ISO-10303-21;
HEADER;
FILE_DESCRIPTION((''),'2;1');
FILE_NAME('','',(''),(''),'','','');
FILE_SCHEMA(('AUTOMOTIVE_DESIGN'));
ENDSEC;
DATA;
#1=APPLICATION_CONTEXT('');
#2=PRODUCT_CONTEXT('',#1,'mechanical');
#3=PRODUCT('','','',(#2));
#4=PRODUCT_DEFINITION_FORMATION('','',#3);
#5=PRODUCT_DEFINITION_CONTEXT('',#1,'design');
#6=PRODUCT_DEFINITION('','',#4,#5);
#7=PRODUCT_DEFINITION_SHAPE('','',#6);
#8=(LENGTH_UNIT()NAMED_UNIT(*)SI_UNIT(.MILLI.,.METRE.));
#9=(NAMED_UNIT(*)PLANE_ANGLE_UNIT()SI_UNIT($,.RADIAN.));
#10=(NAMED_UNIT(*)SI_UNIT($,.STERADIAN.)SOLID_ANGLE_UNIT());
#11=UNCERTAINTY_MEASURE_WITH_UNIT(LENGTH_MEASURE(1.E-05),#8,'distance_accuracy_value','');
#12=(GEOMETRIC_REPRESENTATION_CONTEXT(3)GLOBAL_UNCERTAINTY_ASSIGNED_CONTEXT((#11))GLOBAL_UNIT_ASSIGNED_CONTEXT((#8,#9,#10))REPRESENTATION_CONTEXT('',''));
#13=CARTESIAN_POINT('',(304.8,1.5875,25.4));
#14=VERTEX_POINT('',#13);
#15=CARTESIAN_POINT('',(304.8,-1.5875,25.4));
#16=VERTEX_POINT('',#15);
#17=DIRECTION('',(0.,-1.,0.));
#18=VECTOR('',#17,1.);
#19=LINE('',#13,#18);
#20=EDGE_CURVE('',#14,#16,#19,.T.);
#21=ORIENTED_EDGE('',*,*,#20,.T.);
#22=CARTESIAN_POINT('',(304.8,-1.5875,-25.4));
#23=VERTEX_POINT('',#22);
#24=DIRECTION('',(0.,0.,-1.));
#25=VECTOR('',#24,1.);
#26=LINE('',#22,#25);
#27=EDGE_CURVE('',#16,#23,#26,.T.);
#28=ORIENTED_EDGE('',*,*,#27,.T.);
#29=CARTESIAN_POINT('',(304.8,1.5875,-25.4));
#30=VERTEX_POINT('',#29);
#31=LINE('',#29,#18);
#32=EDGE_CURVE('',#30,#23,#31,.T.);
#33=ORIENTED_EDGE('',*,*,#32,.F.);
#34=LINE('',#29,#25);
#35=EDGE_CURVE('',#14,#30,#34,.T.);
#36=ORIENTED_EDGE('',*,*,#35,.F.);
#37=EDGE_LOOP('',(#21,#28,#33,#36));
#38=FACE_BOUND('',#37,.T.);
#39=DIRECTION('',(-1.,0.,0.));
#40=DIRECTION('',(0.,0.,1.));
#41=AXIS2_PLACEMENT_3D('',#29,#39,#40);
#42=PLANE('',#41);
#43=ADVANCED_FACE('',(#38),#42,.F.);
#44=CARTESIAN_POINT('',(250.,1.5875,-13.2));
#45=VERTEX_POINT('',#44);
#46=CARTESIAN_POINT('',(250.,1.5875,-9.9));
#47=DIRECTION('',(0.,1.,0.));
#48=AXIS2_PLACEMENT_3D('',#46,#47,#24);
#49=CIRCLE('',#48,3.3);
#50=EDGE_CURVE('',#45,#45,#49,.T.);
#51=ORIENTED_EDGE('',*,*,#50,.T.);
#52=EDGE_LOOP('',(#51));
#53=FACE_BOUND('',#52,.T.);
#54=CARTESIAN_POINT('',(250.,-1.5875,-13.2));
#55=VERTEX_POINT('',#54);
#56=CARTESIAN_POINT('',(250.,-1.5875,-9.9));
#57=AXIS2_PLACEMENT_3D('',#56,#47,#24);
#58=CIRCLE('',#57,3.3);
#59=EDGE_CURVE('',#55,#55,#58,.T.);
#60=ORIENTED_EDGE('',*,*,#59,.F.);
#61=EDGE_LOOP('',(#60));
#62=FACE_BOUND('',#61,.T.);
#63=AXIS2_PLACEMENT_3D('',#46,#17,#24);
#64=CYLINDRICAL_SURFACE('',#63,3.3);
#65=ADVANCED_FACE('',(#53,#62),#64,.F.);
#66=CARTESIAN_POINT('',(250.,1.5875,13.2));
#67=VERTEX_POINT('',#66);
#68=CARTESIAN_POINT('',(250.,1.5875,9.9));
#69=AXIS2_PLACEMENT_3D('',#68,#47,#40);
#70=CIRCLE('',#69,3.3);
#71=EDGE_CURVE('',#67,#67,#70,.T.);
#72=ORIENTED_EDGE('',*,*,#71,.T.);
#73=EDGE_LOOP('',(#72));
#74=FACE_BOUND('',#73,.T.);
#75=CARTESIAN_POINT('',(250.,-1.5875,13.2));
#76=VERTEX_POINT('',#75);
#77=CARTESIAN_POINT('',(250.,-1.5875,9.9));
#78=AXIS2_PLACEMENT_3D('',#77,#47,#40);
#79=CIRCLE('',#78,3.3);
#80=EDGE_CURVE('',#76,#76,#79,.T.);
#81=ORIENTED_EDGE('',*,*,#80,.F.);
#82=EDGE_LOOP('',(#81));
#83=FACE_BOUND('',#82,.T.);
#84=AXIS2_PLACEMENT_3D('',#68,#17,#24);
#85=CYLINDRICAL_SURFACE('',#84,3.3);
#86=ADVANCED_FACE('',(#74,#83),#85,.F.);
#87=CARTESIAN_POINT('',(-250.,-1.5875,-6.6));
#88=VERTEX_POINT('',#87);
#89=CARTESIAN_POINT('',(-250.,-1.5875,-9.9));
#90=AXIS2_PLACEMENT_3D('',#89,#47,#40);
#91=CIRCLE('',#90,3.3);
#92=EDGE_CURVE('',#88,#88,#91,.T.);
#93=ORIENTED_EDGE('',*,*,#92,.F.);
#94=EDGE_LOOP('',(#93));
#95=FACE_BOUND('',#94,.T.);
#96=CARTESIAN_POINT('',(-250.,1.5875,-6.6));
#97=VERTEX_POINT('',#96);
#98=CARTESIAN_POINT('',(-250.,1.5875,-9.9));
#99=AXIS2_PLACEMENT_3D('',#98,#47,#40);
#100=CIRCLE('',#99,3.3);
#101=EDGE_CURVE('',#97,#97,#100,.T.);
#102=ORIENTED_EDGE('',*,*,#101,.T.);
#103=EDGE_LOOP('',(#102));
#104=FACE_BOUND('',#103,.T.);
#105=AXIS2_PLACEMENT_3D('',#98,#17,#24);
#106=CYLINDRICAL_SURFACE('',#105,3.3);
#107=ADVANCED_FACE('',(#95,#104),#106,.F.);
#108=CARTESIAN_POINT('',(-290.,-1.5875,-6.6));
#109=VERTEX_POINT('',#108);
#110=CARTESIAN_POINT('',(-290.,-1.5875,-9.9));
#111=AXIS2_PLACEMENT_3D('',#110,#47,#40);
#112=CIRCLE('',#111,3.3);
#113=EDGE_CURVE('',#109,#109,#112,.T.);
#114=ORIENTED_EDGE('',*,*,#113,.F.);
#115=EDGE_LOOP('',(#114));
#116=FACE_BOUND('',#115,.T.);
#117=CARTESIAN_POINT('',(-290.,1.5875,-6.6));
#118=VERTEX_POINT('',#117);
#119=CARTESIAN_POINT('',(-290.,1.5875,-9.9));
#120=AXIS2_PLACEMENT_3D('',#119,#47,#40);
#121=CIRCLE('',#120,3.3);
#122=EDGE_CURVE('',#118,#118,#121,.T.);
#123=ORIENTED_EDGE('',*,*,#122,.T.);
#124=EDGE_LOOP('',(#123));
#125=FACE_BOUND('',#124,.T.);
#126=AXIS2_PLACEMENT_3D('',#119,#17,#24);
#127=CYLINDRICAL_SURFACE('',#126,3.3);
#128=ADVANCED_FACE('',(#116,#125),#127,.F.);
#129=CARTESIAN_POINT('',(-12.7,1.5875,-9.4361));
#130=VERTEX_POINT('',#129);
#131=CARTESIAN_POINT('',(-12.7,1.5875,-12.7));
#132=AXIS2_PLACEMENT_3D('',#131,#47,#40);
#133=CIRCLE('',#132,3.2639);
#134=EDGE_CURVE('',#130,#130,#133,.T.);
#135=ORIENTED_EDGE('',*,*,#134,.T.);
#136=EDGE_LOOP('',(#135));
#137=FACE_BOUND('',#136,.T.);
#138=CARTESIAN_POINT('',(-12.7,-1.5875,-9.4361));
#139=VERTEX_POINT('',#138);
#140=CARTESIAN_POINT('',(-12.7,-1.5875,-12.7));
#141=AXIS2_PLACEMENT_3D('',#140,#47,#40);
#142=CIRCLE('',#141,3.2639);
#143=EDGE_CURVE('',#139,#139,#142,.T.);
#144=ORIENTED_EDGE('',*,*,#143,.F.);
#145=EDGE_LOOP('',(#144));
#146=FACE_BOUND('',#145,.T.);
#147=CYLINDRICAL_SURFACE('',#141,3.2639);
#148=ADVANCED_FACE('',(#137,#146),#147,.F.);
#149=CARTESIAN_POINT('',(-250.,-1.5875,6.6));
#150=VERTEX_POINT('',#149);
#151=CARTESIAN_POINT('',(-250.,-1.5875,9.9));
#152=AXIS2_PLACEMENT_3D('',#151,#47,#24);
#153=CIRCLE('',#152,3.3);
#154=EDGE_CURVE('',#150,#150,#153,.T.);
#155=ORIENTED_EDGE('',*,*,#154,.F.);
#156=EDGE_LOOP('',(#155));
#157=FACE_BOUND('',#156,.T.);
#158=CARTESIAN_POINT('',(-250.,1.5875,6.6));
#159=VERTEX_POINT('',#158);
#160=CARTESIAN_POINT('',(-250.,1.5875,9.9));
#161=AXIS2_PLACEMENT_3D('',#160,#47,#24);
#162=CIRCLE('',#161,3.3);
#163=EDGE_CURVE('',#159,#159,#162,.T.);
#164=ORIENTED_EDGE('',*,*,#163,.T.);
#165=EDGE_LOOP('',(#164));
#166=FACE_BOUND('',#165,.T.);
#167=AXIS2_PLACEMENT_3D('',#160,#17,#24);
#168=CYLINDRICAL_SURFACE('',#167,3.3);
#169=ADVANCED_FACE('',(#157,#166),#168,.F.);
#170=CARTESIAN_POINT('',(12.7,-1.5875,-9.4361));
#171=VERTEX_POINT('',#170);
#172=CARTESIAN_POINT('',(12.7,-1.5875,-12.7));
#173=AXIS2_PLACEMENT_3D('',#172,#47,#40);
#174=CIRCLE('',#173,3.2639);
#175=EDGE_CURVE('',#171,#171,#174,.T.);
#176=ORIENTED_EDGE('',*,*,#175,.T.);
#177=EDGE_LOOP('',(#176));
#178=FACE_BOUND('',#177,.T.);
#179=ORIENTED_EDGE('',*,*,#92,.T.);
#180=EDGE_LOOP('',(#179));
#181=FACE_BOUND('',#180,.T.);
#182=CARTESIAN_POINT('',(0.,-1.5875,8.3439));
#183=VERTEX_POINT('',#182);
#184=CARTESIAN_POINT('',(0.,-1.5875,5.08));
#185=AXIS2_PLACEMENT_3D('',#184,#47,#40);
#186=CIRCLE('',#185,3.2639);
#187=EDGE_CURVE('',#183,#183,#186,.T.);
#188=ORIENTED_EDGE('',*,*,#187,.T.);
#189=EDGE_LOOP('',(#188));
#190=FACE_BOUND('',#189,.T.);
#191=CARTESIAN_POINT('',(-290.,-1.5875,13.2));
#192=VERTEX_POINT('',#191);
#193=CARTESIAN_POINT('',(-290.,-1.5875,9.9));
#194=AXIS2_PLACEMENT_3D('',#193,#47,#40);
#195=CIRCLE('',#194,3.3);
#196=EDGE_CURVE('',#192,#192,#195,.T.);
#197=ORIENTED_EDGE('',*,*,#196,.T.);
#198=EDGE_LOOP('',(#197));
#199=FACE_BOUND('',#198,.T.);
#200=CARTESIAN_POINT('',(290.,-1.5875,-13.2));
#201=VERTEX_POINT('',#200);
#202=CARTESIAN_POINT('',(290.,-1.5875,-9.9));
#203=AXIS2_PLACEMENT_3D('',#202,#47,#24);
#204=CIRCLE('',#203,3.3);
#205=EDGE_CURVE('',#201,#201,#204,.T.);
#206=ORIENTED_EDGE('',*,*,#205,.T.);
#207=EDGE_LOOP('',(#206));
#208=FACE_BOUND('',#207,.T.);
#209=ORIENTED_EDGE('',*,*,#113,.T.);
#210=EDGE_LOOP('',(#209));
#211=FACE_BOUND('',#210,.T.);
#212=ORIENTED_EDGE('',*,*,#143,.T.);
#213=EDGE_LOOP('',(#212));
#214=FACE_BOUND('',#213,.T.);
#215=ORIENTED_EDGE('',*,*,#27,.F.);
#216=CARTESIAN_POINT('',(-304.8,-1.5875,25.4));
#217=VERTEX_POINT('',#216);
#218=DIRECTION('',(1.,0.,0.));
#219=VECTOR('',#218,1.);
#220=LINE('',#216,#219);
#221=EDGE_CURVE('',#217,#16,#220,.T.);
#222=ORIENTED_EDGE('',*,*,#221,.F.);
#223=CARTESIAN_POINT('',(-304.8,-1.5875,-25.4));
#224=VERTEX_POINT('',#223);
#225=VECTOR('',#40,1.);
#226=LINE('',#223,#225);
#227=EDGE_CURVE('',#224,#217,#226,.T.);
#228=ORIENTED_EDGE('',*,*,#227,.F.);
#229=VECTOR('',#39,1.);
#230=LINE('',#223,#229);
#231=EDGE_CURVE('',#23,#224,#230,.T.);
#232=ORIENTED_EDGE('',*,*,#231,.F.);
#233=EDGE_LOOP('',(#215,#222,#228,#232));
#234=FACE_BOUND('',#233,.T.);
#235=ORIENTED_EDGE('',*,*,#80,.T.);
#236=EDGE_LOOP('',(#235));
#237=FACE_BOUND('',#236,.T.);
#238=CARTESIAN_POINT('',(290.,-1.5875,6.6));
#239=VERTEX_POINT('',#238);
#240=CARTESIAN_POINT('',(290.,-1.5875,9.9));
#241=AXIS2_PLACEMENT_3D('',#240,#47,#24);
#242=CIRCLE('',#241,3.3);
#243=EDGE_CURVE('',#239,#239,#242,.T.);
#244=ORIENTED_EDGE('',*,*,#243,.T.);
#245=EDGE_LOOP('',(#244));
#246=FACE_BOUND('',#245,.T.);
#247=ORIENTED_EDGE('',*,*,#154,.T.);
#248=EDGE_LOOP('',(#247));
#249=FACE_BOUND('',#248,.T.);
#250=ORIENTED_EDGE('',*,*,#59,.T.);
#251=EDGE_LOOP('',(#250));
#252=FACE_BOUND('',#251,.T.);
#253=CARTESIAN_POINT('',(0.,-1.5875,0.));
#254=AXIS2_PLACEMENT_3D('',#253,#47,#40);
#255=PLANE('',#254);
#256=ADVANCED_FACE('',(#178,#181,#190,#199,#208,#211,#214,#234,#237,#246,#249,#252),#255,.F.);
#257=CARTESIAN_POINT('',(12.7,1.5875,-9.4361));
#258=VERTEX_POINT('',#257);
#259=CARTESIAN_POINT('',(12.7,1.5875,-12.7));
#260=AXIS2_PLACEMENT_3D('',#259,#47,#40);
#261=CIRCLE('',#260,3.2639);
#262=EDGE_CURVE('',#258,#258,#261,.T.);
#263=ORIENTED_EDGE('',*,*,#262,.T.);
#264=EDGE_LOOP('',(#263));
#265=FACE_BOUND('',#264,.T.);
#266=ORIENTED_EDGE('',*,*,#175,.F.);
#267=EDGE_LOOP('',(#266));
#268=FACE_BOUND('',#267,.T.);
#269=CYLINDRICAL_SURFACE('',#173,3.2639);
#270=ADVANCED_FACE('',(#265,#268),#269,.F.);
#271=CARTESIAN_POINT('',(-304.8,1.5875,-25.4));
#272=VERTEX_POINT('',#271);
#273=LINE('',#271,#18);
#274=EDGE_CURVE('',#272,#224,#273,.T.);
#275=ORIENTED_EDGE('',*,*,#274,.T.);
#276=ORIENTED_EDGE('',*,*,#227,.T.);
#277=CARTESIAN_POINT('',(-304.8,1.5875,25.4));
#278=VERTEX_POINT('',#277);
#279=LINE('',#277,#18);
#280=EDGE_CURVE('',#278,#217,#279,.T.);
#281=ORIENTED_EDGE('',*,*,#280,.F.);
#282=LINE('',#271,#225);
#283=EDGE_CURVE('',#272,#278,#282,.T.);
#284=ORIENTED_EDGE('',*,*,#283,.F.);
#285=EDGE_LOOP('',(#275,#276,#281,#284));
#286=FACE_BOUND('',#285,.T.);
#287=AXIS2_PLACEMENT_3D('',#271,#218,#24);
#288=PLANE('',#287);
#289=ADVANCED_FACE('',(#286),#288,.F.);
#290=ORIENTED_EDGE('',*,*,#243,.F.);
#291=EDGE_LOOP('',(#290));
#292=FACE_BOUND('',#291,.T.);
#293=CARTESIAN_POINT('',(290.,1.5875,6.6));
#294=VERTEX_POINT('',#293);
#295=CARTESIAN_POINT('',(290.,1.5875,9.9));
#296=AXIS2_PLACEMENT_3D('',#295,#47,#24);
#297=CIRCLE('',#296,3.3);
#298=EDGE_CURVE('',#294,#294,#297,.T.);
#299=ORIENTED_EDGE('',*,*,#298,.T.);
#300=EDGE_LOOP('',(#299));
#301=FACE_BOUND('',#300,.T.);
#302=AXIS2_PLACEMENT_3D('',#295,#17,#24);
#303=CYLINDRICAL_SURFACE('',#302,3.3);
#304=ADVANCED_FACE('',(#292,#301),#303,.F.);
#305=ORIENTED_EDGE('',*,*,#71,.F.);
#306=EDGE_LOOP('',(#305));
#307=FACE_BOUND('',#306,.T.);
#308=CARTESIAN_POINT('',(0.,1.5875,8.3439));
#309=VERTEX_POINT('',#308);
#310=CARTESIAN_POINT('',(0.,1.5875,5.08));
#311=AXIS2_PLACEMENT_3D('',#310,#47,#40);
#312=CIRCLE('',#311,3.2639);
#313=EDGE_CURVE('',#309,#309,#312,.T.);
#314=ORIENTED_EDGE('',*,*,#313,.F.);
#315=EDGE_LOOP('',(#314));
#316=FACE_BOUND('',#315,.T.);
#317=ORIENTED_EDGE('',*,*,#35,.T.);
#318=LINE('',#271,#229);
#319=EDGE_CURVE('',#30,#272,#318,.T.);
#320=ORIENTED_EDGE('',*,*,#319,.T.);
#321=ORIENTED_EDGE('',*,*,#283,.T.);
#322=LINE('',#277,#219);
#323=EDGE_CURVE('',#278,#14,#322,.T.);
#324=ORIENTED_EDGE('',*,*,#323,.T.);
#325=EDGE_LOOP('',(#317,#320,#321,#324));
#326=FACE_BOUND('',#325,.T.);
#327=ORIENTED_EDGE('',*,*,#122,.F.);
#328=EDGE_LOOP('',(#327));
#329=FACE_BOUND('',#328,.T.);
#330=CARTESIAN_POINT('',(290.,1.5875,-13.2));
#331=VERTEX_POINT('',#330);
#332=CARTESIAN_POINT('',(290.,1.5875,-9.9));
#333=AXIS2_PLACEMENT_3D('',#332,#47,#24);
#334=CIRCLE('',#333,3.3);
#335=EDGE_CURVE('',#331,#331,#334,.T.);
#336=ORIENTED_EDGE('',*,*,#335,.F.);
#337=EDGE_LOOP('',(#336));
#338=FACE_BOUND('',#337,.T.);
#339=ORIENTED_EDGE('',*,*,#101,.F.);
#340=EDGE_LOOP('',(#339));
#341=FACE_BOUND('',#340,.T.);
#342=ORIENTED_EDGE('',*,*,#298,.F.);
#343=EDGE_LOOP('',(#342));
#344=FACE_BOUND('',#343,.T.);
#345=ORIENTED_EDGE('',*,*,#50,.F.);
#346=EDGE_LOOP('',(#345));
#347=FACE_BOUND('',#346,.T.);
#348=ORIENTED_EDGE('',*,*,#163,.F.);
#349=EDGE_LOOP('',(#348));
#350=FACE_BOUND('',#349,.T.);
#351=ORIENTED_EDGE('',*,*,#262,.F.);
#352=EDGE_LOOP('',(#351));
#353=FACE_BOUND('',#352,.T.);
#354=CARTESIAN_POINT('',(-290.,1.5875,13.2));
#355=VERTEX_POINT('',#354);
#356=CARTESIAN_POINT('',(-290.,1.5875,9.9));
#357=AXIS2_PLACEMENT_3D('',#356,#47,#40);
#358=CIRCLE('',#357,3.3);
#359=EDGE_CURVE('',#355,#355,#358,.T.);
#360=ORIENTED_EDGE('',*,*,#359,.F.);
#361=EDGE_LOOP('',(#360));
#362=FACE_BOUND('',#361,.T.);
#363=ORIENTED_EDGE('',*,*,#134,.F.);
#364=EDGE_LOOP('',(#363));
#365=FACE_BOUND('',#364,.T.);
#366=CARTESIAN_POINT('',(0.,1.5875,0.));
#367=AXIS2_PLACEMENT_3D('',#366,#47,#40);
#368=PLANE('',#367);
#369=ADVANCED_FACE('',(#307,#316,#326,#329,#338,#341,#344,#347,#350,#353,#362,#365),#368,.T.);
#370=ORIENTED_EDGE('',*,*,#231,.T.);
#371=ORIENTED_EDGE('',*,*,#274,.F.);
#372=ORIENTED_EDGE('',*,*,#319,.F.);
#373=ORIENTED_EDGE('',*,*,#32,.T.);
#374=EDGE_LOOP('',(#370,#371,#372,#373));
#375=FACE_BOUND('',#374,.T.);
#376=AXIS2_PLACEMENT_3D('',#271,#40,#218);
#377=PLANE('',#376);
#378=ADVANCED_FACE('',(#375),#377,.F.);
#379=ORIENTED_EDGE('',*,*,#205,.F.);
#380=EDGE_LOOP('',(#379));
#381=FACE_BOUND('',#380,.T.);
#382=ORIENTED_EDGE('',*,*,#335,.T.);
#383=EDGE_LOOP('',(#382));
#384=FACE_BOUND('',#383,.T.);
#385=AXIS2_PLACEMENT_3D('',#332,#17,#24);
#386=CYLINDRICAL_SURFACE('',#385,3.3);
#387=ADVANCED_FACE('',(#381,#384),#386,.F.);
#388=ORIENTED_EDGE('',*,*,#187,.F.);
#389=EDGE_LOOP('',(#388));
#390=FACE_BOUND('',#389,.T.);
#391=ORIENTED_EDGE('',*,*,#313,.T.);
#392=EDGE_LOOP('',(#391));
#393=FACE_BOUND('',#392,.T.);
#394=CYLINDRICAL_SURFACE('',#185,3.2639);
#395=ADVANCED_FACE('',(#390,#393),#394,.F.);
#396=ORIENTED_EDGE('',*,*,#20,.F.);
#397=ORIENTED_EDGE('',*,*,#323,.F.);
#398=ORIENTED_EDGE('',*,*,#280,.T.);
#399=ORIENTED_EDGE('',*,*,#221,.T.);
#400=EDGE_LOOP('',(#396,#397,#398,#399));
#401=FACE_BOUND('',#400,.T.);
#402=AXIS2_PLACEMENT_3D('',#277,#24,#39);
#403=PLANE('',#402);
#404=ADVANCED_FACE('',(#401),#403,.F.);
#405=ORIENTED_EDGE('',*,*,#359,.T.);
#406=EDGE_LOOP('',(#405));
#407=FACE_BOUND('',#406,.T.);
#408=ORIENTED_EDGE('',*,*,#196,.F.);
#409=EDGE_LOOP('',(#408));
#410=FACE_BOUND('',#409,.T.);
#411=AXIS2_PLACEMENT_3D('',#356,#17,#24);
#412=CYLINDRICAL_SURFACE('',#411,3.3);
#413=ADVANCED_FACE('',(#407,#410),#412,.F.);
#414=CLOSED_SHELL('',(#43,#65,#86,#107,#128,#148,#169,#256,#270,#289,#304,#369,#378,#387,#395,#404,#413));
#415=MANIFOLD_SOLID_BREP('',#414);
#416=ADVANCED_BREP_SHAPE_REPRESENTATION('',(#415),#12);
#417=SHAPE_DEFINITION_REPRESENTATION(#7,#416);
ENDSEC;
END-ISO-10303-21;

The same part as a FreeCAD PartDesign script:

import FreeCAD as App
import Part
import Sketcher
Q = App.Units.Quantity


def add_polygon(sketch, points):
    """Adds a closed chain of lines whose ends are joined by coincident constraints."""
    first, n = sketch.GeometryCount, len(points)
    for a, b in zip(points, points[1:] + points[:1]):
        sketch.addGeometry(Part.LineSegment(App.Vector(*a, 0), App.Vector(*b, 0)), False)
    for i in range(n):
        sketch.addConstraint(Sketcher.Constraint("Coincident", first + i, 2, first + (i + 1) % n, 1))

doc = App.newDocument("Part")
body = doc.addObject("PartDesign::Body", "Body")

sketch1 = body.newObject("Sketcher::SketchObject", "Sketch")
sketch1.AttachmentSupport = (doc.getObject("XZ_Plane"), [""])
sketch1.MapMode = "FlatFace"
add_polygon(sketch1, [(-304.8, -25.4), (-304.8, 25.4), (304.8, 25.4), (304.8, -25.4)])
sketch1.addGeometry(Part.Circle(App.Vector(-290, 9.9, 0), App.Vector(0, 0, 1), 3.3), False)
sketch1.addGeometry(Part.Circle(App.Vector(-250, 9.9, 0), App.Vector(0, 0, 1), 3.3), False)
sketch1.addGeometry(Part.Circle(App.Vector(250, 9.9, 0), App.Vector(0, 0, 1), 3.3), False)
sketch1.addGeometry(Part.Circle(App.Vector(290, 9.9, 0), App.Vector(0, 0, 1), 3.3), False)
sketch1.addGeometry(Part.Circle(App.Vector(-290, -9.9, 0), App.Vector(0, 0, 1), 3.3), False)
sketch1.addGeometry(Part.Circle(App.Vector(-250, -9.9, 0), App.Vector(0, 0, 1), 3.3), False)
sketch1.addGeometry(Part.Circle(App.Vector(250, -9.9, 0), App.Vector(0, 0, 1), 3.3), False)
sketch1.addGeometry(Part.Circle(App.Vector(290, -9.9, 0), App.Vector(0, 0, 1), 3.3), False)
sketch1.addConstraint([
    Sketcher.Constraint("Vertical", 0),
    Sketcher.Constraint("Horizontal", 1),
    Sketcher.Constraint("Vertical", 2),
    Sketcher.Constraint("Horizontal", 3),
    Sketcher.Constraint("Equal", 4, 5),
    Sketcher.Constraint("Equal", 5, 6),
    Sketcher.Constraint("Equal", 6, 7),
    Sketcher.Constraint("Equal", 7, 8),
    Sketcher.Constraint("Equal", 8, 9),
    Sketcher.Constraint("Equal", 9, 10),
    Sketcher.Constraint("Equal", 10, 11),
    Sketcher.Constraint("Symmetric", 7, 3, 8, 3, -1, 1),
    Sketcher.Constraint("Symmetric", 6, 3, 9, 3, -1, 1),
    Sketcher.Constraint("Symmetric", 5, 3, 10, 3, -1, 1),
    Sketcher.Constraint("Symmetric", 4, 3, 11, 3, -1, 1),
    Sketcher.Constraint("Symmetric", 0, 2, 2, 2, -1, 1),
    Sketcher.Constraint("Symmetric", 5, 3, 6, 3, -2),
    Sketcher.Constraint("Symmetric", 4, 3, 7, 3, -2),
    Sketcher.Constraint("Horizontal", 4, 3, 5, 3),
    Sketcher.Constraint("DistanceX", 1, 1, 1, 2, Q("24 in")),
    Sketcher.Constraint("DistanceY", 0, 1, 0, 2, Q("2 in")),
    Sketcher.Constraint("Diameter", 4, 6.6),
    Sketcher.Constraint("DistanceX", 4, 3, -1, 1, 290.0),
    Sketcher.Constraint("DistanceY", -1, 1, 4, 3, 9.9),
    Sketcher.Constraint("DistanceX", 5, 3, -1, 1, 250.0),
])
pad1 = body.newObject("PartDesign::Pad", "Pad")
pad1.Profile = sketch1
pad1.Length = Q("0.125 in")
pad1.Midplane = True

sketch2 = body.newObject("Sketcher::SketchObject", "Sketch001")
sketch2.AttachmentSupport = (doc.getObject("XZ_Plane"), [""])
sketch2.MapMode = "FlatFace"
sketch2.AttachmentOffset = App.Placement(App.Vector(0, 0, -0.0625 * 25.4), App.Rotation())
sketch2.addGeometry([
    Part.Circle(App.Vector(-12.7, -12.7, 0), App.Vector(0, 0, 1), 3.2639),
    Part.Circle(App.Vector(12.7, -12.7, 0), App.Vector(0, 0, 1), 3.2639),
    Part.Circle(App.Vector(0, 5.08, 0), App.Vector(0, 0, 1), 3.2639),
], False)
sketch2.addConstraint([
    Sketcher.Constraint("Equal", 0, 1),
    Sketcher.Constraint("Equal", 1, 2),
    Sketcher.Constraint("Symmetric", 0, 3, 1, 3, -2),
    Sketcher.Constraint("PointOnObject", 2, 3, -2),
    Sketcher.Constraint("Diameter", 0, Q("0.257 in")),
    Sketcher.Constraint("DistanceX", 0, 3, 1, 3, Q("1 in")),
    Sketcher.Constraint("DistanceY", 0, 3, -1, 1, Q("0.5 in")),
    Sketcher.Constraint("DistanceY", -1, 1, 2, 3, Q("0.2 in")),
])
pocket1 = body.newObject("PartDesign::Pocket", "Pocket")
pocket1.Profile = sketch2
pocket1.Type = "ThroughAll"
pocket1.Reversed = True

doc.recompute()
